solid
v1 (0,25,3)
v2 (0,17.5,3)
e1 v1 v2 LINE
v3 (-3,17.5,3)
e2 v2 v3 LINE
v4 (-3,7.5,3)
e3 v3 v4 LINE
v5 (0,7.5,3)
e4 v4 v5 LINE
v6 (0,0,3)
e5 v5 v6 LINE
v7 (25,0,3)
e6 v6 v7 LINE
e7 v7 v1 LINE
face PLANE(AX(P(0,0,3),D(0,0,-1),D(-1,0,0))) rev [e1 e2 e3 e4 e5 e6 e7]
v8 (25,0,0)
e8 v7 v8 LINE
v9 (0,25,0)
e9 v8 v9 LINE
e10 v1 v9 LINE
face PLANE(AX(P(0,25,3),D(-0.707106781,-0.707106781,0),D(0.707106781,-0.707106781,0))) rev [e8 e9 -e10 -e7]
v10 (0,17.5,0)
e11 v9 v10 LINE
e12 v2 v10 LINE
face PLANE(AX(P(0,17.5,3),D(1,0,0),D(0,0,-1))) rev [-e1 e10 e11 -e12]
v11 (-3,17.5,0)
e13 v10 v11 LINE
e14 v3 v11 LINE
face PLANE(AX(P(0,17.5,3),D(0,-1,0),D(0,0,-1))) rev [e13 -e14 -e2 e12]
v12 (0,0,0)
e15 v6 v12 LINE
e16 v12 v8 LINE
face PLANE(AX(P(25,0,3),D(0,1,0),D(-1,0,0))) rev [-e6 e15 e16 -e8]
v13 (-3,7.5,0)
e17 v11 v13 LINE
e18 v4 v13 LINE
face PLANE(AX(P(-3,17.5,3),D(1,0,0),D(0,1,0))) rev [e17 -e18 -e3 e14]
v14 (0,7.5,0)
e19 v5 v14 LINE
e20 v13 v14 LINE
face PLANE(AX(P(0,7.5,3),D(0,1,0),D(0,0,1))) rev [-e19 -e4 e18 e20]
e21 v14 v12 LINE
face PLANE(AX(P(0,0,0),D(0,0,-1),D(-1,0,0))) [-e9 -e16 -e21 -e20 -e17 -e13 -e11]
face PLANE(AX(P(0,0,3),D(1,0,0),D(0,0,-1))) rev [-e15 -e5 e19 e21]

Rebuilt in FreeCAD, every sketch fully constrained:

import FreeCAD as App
import Part
import Sketcher
Q = App.Units.Quantity


def add_polygon(sketch, points):
    """Adds a closed chain of lines whose ends are joined by coincident constraints."""
    first, n = sketch.GeometryCount, len(points)
    for a, b in zip(points, points[1:] + points[:1]):
        sketch.addGeometry(Part.LineSegment(App.Vector(*a, 0), App.Vector(*b, 0)), False)
    for i in range(n):
        sketch.addConstraint(Sketcher.Constraint("Coincident", first + i, 2, first + (i + 1) % n, 1))

doc = App.newDocument("Part")
params = doc.addObject("Spreadsheet::Sheet", "Params")
for row, (alias, value) in enumerate([
    ("sketch1_width", "25 mm"),
    ("sketch1_width2", "3 mm"),
    ("sketch1_height", "10 mm"),
    ("pad1_length", "3 mm"),
], start=1):
    params.set(f"A{row}", alias)
    params.set(f"B{row}", "=" + value)
    params.setAlias(f"B{row}", alias)

body = doc.addObject("PartDesign::Body", "Body")

sketch1 = body.newObject("Sketcher::SketchObject", "Sketch")
sketch1.AttachmentSupport = (doc.getObject("XY_Plane"), [""])
sketch1.MapMode = "FlatFace"
add_polygon(sketch1, [(0, 7.5), (0, 0), (25, 0), (0, 25), (0, 17.5), (-3, 17.5), (-3, 7.5)])
sketch1.addConstraint([
    Sketcher.Constraint("Vertical", 0),
    Sketcher.Constraint("Horizontal", 1),
    Sketcher.Constraint("Vertical", 3),
    Sketcher.Constraint("Horizontal", 4),
    Sketcher.Constraint("Vertical", 5),
    Sketcher.Constraint("Horizontal", 6),
    Sketcher.Constraint("Coincident", 0, 2, -1, 1),
    Sketcher.Constraint("PointOnObject", 2, 2, -2),
    Sketcher.Constraint("Equal", 0, 3),
    Sketcher.Constraint("DistanceX", 1, 1, 1, 2, 25.0),
    Sketcher.Constraint("DistanceX", 4, 2, 4, 1, 3.0),
    Sketcher.Constraint("DistanceY", 5, 2, 5, 1, 10.0),
    Sketcher.Constraint("Angle", 2, Q("135 deg")),
])
sketch1.setExpression("Constraints[16]", "Params.sketch1_width")
sketch1.setExpression("Constraints[17]", "Params.sketch1_width2")
sketch1.setExpression("Constraints[18]", "Params.sketch1_height")
pad1 = body.newObject("PartDesign::Pad", "Pad")
pad1.Profile = sketch1
pad1.setExpression("Length", "Params.pad1_length")

doc.recompute()
